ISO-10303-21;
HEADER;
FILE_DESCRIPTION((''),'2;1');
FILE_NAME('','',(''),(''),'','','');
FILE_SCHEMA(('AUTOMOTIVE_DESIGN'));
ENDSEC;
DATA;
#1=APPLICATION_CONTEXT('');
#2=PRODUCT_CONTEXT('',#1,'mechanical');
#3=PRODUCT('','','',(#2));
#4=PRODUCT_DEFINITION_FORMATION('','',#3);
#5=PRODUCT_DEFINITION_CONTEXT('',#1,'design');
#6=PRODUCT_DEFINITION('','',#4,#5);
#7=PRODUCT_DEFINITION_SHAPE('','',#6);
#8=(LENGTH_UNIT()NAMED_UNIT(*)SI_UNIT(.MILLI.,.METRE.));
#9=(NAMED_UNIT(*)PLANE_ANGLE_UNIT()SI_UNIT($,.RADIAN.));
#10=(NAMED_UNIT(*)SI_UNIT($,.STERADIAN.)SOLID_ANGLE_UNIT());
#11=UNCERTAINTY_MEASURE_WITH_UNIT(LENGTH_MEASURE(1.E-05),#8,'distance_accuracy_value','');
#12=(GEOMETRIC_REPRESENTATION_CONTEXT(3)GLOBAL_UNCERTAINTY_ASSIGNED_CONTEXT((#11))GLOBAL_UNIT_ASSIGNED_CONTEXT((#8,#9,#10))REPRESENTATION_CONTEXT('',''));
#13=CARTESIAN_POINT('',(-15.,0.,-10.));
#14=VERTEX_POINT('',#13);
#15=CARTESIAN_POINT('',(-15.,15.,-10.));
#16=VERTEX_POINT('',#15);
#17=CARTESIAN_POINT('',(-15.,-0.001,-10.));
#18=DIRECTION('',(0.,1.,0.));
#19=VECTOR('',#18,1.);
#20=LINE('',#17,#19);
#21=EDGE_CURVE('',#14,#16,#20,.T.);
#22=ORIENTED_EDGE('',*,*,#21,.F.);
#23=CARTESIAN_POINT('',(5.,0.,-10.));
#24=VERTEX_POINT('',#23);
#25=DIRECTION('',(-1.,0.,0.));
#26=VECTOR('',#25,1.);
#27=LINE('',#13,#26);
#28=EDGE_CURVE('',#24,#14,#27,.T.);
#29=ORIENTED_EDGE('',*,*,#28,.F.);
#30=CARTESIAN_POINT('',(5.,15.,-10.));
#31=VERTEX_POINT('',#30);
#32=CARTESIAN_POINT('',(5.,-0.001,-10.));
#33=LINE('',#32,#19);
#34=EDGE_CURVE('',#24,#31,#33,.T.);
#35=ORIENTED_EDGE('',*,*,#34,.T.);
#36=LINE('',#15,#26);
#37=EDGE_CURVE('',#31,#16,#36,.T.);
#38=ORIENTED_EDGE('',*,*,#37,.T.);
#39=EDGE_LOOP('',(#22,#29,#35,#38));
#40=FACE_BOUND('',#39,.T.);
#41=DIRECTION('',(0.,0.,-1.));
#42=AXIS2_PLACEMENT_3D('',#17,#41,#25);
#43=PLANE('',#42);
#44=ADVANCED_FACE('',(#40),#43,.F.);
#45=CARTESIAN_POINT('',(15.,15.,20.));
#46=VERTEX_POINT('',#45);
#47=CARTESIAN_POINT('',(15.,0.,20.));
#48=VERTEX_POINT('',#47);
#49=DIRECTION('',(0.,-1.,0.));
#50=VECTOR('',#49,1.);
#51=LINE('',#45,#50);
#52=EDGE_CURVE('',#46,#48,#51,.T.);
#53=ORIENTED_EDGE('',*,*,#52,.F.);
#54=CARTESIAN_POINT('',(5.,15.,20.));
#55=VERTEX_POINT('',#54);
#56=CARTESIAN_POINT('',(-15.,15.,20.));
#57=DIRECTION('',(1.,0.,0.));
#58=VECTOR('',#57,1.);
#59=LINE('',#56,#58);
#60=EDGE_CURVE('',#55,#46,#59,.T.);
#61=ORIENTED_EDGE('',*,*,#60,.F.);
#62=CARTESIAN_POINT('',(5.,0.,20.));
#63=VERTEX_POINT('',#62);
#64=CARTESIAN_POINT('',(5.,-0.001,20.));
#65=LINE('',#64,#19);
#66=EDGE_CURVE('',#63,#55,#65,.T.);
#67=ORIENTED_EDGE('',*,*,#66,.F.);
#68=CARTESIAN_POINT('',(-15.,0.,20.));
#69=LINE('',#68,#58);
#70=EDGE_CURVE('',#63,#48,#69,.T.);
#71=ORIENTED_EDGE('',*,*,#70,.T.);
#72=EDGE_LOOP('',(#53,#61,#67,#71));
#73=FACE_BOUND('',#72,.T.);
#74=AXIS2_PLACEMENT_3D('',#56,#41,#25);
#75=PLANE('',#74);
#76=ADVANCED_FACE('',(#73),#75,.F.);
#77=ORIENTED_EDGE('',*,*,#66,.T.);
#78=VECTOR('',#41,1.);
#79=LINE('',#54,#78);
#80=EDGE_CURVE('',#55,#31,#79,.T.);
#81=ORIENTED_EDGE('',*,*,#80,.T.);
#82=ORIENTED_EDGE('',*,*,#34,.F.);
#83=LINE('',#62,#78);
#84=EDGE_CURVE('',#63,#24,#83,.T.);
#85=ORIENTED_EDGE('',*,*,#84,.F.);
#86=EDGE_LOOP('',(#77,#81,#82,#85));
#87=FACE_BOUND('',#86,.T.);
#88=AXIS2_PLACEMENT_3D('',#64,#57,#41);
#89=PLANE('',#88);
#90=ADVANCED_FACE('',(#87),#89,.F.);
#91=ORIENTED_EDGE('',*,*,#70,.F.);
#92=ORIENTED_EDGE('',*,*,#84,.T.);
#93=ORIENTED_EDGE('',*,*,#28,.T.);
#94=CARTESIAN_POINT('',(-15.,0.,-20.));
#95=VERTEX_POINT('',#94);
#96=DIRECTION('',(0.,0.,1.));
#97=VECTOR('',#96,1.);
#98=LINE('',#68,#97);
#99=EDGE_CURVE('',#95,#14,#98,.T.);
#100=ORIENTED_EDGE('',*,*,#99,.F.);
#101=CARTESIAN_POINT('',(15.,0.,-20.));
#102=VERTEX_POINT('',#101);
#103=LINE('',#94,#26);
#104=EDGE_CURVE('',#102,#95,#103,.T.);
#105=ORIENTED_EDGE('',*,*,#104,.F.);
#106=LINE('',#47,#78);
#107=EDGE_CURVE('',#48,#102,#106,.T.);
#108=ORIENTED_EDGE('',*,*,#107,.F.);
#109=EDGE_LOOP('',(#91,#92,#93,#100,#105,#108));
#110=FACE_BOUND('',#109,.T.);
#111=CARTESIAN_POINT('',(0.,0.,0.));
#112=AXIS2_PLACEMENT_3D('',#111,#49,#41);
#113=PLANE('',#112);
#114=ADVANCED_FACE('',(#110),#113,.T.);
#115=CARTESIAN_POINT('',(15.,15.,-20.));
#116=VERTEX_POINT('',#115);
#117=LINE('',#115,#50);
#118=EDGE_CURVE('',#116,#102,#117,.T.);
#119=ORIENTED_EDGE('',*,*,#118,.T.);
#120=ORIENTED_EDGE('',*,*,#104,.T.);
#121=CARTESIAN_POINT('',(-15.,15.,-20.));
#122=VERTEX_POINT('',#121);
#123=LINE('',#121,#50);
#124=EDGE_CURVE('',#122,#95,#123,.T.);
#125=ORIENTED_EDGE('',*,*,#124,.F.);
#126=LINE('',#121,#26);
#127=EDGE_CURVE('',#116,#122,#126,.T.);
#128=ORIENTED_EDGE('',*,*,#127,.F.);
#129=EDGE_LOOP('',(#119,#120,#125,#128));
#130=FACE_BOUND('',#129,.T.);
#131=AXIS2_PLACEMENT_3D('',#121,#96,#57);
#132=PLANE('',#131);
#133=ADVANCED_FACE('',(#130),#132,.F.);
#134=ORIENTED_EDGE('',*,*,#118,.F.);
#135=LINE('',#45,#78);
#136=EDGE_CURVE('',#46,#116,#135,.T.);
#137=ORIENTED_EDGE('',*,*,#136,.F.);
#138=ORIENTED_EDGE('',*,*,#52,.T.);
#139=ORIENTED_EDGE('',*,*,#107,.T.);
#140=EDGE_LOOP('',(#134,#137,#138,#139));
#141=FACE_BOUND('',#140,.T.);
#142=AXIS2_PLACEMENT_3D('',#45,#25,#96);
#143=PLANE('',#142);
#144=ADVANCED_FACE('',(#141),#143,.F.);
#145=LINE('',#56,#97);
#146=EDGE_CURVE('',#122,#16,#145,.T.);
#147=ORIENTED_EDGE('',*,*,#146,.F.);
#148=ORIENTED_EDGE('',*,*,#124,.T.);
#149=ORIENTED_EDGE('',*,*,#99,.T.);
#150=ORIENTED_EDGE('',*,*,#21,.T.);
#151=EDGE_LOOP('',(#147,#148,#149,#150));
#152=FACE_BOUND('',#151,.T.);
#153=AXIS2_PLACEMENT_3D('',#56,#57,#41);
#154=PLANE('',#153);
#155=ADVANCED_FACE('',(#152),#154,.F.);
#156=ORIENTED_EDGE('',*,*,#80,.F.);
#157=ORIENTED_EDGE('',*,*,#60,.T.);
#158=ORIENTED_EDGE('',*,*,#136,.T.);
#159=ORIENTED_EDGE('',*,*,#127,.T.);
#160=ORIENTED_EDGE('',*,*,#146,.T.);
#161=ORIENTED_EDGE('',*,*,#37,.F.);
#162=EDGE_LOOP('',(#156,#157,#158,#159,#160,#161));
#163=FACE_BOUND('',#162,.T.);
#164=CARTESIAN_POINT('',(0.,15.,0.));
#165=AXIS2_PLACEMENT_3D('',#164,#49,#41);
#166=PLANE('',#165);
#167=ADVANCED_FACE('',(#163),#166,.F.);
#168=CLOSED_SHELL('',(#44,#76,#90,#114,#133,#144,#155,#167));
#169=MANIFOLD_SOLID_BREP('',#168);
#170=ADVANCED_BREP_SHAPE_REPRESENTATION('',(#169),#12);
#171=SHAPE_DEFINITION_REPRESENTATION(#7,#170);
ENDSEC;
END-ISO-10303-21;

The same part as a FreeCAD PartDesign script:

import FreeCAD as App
import Part
import Sketcher
from FreeCAD import Vector
Q = App.Units.Quantity

doc = App.newDocument("Part")
body = doc.addObject("PartDesign::Body", "Body")

sketch1 = body.newObject("Sketcher::SketchObject", "Sketch")
sketch1.AttachmentSupport = (doc.getObject("XZ_Plane"), [""])
sketch1.MapMode = "FlatFace"
sketch1.addGeometry(Part.LineSegment(Vector(-15, -20, 0), Vector(-15, 20, 0)), False)
sketch1.addGeometry(Part.LineSegment(Vector(-15, 20, 0), Vector(15, 20, 0)), False)
sketch1.addGeometry(Part.LineSegment(Vector(15, 20, 0), Vector(15, -20, 0)), False)
sketch1.addGeometry(Part.LineSegment(Vector(15, -20, 0), Vector(-15, -20, 0)), False)
sketch1.addConstraint(Sketcher.Constraint("Coincident", 0, 2, 1, 1))
sketch1.addConstraint(Sketcher.Constraint("Coincident", 1, 2, 2, 1))
sketch1.addConstraint(Sketcher.Constraint("Coincident", 2, 2, 3, 1))
sketch1.addConstraint(Sketcher.Constraint("Coincident", 3, 2, 0, 1))
sketch1.addConstraint(Sketcher.Constraint("Vertical", 0))
sketch1.addConstraint(Sketcher.Constraint("Horizontal", 1))
sketch1.addConstraint(Sketcher.Constraint("Vertical", 2))
sketch1.addConstraint(Sketcher.Constraint("Horizontal", 3))
sketch1.addConstraint(Sketcher.Constraint("Symmetric", 0, 2, 2, 2, -1, 1))
sketch1.addConstraint(Sketcher.Constraint("DistanceX", 1, 1, 1, 2, Q("30 mm")))
sketch1.addConstraint(Sketcher.Constraint("DistanceY", 0, 1, 0, 2, Q("40 mm")))
pad1 = body.newObject("PartDesign::Pad", "Pad")
pad1.Profile = sketch1
pad1.Length = 15
pad1.Reversed = True

sketch2 = body.newObject("Sketcher::SketchObject", "Sketch001")
sketch2.AttachmentSupport = (doc.getObject("XZ_Plane"), [""])
sketch2.MapMode = "FlatFace"
sketch2.AttachmentOffset = App.Placement(Vector(0, 0, -15), App.Rotation())
sketch2.addGeometry(Part.LineSegment(Vector(-15, -10, 0), Vector(-15, 20, 0)), False)
sketch2.addGeometry(Part.LineSegment(Vector(-15, 20, 0), Vector(5, 20, 0)), False)
sketch2.addGeometry(Part.LineSegment(Vector(5, 20, 0), Vector(5, -10, 0)), False)
sketch2.addGeometry(Part.LineSegment(Vector(5, -10, 0), Vector(-15, -10, 0)), False)
sketch2.addConstraint(Sketcher.Constraint("Coincident", 0, 2, 1, 1))
sketch2.addConstraint(Sketcher.Constraint("Coincident", 1, 2, 2, 1))
sketch2.addConstraint(Sketcher.Constraint("Coincident", 2, 2, 3, 1))
sketch2.addConstraint(Sketcher.Constraint("Coincident", 3, 2, 0, 1))
sketch2.addConstraint(Sketcher.Constraint("Vertical", 0))
sketch2.addConstraint(Sketcher.Constraint("Horizontal", 1))
sketch2.addConstraint(Sketcher.Constraint("Vertical", 2))
sketch2.addConstraint(Sketcher.Constraint("Horizontal", 3))
sketch2.addConstraint(Sketcher.Constraint("DistanceX", 1, 1, 1, 2, Q("20 mm")))
sketch2.addConstraint(Sketcher.Constraint("DistanceY", 0, 1, 0, 2, Q("30 mm")))
sketch2.addConstraint(Sketcher.Constraint("DistanceX", 0, 2, -1, 1, Q("15 mm")))
sketch2.addConstraint(Sketcher.Constraint("DistanceY", -1, 1, 0, 2, Q("20 mm")))
pocket1 = body.newObject("PartDesign::Pocket", "Pocket")
pocket1.Profile = sketch2
pocket1.Type = "UpToFirst"
pocket1.Reversed = True

doc.recompute()
